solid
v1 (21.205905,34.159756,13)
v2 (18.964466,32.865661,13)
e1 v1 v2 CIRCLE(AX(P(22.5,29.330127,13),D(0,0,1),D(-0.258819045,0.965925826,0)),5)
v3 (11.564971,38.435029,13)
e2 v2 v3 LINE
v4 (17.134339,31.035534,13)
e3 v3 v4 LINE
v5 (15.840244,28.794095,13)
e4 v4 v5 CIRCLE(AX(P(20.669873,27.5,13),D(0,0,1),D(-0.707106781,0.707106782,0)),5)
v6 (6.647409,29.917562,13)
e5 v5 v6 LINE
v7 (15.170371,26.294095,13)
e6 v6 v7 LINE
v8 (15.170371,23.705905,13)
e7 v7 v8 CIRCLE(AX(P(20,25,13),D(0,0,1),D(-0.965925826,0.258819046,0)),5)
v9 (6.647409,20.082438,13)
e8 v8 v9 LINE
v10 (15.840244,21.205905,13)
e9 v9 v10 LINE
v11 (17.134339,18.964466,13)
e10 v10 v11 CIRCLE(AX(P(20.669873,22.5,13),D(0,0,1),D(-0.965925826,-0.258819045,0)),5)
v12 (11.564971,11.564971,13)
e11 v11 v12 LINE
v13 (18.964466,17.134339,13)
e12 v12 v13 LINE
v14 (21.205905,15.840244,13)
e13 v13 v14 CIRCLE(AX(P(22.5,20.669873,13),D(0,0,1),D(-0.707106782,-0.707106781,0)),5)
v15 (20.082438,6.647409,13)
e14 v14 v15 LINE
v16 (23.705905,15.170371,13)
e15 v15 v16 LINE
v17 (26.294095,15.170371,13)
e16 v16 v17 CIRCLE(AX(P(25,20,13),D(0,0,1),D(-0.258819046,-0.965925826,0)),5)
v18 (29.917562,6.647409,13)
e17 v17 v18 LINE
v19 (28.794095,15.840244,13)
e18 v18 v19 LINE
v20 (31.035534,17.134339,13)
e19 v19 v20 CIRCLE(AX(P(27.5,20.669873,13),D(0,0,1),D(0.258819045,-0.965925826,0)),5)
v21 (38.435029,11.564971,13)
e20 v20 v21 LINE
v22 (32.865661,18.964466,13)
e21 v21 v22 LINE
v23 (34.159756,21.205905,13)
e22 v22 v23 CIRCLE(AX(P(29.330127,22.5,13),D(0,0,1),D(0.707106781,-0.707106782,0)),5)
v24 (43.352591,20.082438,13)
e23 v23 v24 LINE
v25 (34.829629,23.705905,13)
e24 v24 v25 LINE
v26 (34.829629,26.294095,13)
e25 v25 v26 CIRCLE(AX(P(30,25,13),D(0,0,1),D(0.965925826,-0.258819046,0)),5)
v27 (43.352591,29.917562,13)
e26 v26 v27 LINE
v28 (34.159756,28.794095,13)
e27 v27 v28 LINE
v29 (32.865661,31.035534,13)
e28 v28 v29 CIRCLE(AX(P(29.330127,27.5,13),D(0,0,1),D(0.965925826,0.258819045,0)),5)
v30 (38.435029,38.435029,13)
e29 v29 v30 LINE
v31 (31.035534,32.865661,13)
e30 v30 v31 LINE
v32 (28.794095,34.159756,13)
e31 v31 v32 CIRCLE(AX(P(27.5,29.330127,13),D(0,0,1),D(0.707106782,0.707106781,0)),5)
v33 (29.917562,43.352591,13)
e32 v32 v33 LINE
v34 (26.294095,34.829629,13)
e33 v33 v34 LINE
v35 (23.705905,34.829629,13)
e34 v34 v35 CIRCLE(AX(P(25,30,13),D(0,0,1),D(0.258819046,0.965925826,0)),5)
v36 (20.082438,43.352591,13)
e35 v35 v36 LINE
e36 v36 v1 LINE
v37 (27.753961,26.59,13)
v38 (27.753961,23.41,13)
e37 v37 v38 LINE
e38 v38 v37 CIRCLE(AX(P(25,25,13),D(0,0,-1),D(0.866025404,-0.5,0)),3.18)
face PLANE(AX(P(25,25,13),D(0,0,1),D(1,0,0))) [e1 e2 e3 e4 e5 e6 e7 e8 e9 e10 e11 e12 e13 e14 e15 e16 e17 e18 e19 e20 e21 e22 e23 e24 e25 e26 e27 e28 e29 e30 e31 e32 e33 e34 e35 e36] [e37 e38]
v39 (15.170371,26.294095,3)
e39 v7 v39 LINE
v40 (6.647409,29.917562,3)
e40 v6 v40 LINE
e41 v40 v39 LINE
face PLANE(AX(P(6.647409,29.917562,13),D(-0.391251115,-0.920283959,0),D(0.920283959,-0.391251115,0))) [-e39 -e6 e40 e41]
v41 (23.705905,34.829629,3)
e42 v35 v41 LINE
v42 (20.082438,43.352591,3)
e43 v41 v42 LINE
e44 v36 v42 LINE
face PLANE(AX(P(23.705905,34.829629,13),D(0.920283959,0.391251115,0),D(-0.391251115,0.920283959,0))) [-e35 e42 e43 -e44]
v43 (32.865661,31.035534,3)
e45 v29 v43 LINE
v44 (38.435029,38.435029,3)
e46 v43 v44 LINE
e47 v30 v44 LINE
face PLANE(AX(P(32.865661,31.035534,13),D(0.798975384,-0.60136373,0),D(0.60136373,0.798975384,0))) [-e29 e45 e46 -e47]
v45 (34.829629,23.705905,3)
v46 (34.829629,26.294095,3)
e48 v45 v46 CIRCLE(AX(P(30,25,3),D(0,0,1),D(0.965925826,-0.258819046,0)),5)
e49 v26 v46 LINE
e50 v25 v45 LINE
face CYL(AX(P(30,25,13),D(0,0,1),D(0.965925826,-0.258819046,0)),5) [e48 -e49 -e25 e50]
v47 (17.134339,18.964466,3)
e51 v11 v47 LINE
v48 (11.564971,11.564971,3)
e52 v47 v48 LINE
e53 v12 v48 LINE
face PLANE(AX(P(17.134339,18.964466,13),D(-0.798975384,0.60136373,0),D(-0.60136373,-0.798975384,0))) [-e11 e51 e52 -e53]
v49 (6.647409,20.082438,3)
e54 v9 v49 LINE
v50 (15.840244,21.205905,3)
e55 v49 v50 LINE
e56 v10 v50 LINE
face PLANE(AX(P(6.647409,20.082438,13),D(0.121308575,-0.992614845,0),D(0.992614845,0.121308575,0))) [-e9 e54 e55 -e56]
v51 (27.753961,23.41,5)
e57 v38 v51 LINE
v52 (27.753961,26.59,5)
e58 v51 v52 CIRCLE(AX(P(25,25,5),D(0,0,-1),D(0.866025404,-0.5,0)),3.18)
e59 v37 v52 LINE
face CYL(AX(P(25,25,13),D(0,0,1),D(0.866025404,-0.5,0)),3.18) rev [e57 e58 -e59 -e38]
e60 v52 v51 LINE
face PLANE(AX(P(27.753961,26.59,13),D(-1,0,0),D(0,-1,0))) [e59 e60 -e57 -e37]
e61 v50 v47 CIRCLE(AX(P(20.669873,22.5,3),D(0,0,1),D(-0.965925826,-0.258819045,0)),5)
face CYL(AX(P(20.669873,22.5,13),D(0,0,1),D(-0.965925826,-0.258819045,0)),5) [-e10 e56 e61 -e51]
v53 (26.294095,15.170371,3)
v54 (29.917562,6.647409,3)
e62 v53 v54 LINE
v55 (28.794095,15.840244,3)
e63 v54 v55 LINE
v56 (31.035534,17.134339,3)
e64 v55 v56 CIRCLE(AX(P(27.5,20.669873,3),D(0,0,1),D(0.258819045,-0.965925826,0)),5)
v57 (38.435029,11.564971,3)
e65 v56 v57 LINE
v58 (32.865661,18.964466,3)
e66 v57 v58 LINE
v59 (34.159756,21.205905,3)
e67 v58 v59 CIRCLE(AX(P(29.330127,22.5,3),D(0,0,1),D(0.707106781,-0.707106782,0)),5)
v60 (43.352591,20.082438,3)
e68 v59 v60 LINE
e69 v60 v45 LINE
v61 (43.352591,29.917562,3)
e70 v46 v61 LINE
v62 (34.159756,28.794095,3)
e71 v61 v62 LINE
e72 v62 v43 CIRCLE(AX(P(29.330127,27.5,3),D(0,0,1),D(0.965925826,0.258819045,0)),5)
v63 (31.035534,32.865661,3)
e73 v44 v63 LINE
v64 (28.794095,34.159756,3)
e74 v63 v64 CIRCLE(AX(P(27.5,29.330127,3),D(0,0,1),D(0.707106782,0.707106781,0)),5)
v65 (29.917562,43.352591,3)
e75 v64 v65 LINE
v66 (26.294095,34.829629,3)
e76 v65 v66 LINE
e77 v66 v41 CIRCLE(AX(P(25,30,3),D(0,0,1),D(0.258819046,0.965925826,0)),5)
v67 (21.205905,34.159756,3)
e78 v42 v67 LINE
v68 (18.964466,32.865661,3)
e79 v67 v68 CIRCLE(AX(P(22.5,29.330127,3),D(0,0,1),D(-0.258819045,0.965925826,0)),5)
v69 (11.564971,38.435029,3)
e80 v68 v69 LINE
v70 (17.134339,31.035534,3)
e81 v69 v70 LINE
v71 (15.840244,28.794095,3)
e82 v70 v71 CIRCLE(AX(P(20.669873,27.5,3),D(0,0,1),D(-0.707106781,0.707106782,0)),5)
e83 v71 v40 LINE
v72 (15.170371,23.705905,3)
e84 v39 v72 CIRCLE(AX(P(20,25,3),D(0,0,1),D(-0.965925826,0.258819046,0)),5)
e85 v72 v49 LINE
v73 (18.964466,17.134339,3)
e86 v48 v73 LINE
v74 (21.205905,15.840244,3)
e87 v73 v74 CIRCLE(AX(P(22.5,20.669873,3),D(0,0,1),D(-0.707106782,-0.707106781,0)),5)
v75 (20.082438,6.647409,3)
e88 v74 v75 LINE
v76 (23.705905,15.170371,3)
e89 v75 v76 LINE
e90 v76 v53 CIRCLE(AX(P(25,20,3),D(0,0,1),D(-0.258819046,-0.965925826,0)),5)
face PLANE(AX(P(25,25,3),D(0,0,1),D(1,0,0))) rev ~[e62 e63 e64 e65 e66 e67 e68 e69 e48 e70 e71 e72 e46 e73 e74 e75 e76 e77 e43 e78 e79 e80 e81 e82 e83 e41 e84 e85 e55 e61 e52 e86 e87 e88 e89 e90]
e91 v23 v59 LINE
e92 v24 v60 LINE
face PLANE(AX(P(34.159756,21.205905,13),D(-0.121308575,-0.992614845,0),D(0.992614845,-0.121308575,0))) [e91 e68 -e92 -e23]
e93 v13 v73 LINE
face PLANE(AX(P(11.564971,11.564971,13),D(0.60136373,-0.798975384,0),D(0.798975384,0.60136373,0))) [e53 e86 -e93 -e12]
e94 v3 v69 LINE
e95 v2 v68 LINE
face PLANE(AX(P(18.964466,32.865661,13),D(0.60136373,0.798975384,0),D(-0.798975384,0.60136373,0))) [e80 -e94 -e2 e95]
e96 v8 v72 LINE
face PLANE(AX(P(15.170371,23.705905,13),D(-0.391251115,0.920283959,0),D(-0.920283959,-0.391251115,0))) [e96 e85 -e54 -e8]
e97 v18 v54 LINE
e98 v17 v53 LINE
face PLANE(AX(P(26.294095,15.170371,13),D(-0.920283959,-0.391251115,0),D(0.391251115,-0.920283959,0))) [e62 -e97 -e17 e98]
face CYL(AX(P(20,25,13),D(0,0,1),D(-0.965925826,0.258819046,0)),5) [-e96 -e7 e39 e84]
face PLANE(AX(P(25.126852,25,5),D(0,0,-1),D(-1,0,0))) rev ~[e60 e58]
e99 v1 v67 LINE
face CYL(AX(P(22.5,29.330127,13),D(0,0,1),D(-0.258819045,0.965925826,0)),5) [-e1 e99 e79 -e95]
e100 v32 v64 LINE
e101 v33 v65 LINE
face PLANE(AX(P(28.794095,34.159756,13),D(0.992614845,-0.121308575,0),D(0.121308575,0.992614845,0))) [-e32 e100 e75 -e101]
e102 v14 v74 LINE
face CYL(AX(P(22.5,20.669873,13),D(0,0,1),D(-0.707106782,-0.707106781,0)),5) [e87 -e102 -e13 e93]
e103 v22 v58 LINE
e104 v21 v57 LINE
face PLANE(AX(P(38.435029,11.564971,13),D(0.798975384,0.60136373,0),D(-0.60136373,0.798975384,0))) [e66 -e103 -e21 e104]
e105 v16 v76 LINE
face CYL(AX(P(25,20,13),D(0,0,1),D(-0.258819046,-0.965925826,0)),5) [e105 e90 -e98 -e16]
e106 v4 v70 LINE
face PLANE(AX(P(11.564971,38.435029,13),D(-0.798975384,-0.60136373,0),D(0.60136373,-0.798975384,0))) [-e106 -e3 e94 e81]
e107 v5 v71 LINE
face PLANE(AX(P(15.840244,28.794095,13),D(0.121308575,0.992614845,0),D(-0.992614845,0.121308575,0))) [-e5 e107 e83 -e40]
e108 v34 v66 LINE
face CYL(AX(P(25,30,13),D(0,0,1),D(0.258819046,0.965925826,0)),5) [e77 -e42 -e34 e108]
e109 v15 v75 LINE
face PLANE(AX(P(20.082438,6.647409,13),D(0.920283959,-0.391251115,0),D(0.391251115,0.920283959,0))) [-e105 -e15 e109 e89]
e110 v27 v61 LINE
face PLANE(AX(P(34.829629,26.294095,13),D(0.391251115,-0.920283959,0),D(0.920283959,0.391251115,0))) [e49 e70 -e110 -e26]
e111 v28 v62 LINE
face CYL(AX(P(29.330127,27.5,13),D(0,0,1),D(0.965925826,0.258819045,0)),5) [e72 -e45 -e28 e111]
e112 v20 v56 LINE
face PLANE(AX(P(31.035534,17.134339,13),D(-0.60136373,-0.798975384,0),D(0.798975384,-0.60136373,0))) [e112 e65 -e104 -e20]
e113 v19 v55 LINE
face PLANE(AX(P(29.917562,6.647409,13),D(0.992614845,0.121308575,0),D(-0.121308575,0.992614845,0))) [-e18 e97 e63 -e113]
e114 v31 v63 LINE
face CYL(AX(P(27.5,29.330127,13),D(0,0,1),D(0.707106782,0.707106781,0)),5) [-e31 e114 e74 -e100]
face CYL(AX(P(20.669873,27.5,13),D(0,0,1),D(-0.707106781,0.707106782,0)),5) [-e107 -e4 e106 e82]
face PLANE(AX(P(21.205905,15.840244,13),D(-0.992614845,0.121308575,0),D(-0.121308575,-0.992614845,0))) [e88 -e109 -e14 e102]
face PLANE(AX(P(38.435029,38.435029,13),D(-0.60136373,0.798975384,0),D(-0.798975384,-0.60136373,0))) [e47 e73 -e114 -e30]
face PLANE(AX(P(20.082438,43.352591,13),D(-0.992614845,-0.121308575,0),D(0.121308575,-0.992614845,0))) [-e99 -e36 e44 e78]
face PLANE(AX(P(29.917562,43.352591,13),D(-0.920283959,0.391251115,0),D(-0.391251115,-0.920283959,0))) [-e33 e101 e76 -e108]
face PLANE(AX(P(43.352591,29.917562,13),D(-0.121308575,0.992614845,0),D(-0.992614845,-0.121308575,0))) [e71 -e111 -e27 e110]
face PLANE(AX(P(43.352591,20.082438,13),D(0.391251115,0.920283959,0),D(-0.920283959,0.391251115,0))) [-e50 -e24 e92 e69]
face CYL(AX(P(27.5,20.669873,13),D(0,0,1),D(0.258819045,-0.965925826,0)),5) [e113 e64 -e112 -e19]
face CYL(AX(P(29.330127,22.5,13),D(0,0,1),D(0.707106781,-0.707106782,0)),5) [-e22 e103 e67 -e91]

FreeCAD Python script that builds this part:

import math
import FreeCAD as App
import Part
import Sketcher
from FreeCAD import Vector

doc = App.newDocument("Part")
body = doc.addObject("PartDesign::Body", "Body")

# Sketch on XY plane
sketch1 = body.newObject("Sketcher::SketchObject", "Sketch")
sketch1.AttachmentSupport = (doc.getObject("XY_Plane"), [""])
sketch1.MapMode = "FlatFace"
sketch1.AttachmentOffset = App.Placement(Vector(0, 0, 8), App.Rotation())
sketch1.addGeometry(Part.Circle(Vector(25, 25, 0), Vector(0, 0, 1), 19), False)
sketch1.addConstraint([
    Sketcher.Constraint("Diameter", 0, 38.0),
    Sketcher.Constraint("DistanceX", -1, 1, 0, 3, 25.0),
    Sketcher.Constraint("DistanceY", -1, 1, 0, 3, 25.0),
])
pad1 = body.newObject("PartDesign::Pad", "Pad")
pad1.Profile = sketch1
pad1.Length = 10
pad1.Midplane = True

# Sketch on XY plane
sketch2 = body.newObject("Sketcher::SketchObject", "Sketch001")
sketch2.AttachmentSupport = (doc.getObject("XY_Plane"), [""])
sketch2.MapMode = "FlatFace"
sketch2.AttachmentOffset = App.Placement(Vector(0, 0, 13), App.Rotation())
sketch2.addGeometry([
    Part.LineSegment(Vector(27.8, 23.4, 0), Vector(27.8, 26.6, 0)),
    Part.ArcOfCircle(Part.Circle(Vector(25, 25, 0), Vector(0, 0, 1), 3.2), math.radians(30), math.radians(330)),
], False)
sketch2.addConstraint([
    Sketcher.Constraint("Coincident", 0, 1, 1, 2),
    Sketcher.Constraint("Coincident", 1, 1, 0, 2),
    Sketcher.Constraint("Vertical", 0),
    Sketcher.Constraint("Radius", 1, 3.18),
    Sketcher.Constraint("DistanceX", -1, 1, 1, 3, 25.0),
    Sketcher.Constraint("DistanceY", -1, 1, 1, 3, 25.0),
    Sketcher.Constraint("DistanceY", 0, 1, 0, 2, 3.18),
])
pocket1 = body.newObject("PartDesign::Pocket", "Pocket")
pocket1.Profile = sketch2
pocket1.Length = 8

# Sketch on XY plane
sketch3 = body.newObject("Sketcher::SketchObject", "Sketch002")
sketch3.AttachmentSupport = (doc.getObject("XY_Plane"), [""])
sketch3.MapMode = "FlatFace"
sketch3.AttachmentOffset = App.Placement(Vector(0, 0, 13), App.Rotation())
sketch3.addGeometry([
    Part.LineSegment(Vector(23.7, 15.2, 0), Vector(20.1, 6.6, 0)),
    Part.ArcOfCircle(Part.Circle(Vector(25, 25, 0), Vector(0, 0, 1), 19), math.radians(-105), math.radians(-75)),
    Part.LineSegment(Vector(29.9, 6.6, 0), Vector(26.3, 15.2, 0)),
    Part.ArcOfCircle(Part.Circle(Vector(25, 20, 0), Vector(0, 0, 1), 5), math.radians(-105), math.radians(-75)),
], False)
sketch3.addConstraint([
    Sketcher.Constraint("Coincident", 0, 2, 1, 1),
    Sketcher.Constraint("Coincident", 1, 2, 2, 1),
    Sketcher.Constraint("Coincident", 2, 2, 3, 2),
    Sketcher.Constraint("Coincident", 3, 1, 0, 1),
    Sketcher.Constraint("Horizontal", 0, 2, 1, 2),
    Sketcher.Constraint("Horizontal", 2, 2, 3, 1),
    Sketcher.Constraint("Vertical", 1, 3, 3, 3),
    Sketcher.Constraint("Radius", 1, 19.0),
    Sketcher.Constraint("Radius", 3, 5.0),
    Sketcher.Constraint("DistanceX", -1, 1, 1, 3, 25.0),
    Sketcher.Constraint("DistanceY", -1, 1, 1, 3, 25.0),
    Sketcher.Constraint("DistanceY", -1, 1, 3, 3, 20.0),
    Sketcher.Constraint("Distance", 0, 9.26123),
    Sketcher.Constraint("DistanceX", -1, 1, 0, 2, 20.082438),
])
pocket2 = body.newObject("PartDesign::Pocket", "Pocket001")
pocket2.Profile = sketch3
pocket2.Length = 10
doc.recompute()

datumline = body.newObject("PartDesign::Line", "DatumLine")
datumline.Placement = App.Placement(Vector(25, 25, 0), App.Rotation(Vector(0, 0, 1), Vector(0, 0, 1)))
polarpattern = body.newObject("PartDesign::PolarPattern", "PolarPattern")
polarpattern.Originals = [pocket2]
polarpattern.Axis = (datumline, [""])
polarpattern.Angle = 360
polarpattern.Occurrences = 12
body.Tip = polarpattern

doc.recompute()
